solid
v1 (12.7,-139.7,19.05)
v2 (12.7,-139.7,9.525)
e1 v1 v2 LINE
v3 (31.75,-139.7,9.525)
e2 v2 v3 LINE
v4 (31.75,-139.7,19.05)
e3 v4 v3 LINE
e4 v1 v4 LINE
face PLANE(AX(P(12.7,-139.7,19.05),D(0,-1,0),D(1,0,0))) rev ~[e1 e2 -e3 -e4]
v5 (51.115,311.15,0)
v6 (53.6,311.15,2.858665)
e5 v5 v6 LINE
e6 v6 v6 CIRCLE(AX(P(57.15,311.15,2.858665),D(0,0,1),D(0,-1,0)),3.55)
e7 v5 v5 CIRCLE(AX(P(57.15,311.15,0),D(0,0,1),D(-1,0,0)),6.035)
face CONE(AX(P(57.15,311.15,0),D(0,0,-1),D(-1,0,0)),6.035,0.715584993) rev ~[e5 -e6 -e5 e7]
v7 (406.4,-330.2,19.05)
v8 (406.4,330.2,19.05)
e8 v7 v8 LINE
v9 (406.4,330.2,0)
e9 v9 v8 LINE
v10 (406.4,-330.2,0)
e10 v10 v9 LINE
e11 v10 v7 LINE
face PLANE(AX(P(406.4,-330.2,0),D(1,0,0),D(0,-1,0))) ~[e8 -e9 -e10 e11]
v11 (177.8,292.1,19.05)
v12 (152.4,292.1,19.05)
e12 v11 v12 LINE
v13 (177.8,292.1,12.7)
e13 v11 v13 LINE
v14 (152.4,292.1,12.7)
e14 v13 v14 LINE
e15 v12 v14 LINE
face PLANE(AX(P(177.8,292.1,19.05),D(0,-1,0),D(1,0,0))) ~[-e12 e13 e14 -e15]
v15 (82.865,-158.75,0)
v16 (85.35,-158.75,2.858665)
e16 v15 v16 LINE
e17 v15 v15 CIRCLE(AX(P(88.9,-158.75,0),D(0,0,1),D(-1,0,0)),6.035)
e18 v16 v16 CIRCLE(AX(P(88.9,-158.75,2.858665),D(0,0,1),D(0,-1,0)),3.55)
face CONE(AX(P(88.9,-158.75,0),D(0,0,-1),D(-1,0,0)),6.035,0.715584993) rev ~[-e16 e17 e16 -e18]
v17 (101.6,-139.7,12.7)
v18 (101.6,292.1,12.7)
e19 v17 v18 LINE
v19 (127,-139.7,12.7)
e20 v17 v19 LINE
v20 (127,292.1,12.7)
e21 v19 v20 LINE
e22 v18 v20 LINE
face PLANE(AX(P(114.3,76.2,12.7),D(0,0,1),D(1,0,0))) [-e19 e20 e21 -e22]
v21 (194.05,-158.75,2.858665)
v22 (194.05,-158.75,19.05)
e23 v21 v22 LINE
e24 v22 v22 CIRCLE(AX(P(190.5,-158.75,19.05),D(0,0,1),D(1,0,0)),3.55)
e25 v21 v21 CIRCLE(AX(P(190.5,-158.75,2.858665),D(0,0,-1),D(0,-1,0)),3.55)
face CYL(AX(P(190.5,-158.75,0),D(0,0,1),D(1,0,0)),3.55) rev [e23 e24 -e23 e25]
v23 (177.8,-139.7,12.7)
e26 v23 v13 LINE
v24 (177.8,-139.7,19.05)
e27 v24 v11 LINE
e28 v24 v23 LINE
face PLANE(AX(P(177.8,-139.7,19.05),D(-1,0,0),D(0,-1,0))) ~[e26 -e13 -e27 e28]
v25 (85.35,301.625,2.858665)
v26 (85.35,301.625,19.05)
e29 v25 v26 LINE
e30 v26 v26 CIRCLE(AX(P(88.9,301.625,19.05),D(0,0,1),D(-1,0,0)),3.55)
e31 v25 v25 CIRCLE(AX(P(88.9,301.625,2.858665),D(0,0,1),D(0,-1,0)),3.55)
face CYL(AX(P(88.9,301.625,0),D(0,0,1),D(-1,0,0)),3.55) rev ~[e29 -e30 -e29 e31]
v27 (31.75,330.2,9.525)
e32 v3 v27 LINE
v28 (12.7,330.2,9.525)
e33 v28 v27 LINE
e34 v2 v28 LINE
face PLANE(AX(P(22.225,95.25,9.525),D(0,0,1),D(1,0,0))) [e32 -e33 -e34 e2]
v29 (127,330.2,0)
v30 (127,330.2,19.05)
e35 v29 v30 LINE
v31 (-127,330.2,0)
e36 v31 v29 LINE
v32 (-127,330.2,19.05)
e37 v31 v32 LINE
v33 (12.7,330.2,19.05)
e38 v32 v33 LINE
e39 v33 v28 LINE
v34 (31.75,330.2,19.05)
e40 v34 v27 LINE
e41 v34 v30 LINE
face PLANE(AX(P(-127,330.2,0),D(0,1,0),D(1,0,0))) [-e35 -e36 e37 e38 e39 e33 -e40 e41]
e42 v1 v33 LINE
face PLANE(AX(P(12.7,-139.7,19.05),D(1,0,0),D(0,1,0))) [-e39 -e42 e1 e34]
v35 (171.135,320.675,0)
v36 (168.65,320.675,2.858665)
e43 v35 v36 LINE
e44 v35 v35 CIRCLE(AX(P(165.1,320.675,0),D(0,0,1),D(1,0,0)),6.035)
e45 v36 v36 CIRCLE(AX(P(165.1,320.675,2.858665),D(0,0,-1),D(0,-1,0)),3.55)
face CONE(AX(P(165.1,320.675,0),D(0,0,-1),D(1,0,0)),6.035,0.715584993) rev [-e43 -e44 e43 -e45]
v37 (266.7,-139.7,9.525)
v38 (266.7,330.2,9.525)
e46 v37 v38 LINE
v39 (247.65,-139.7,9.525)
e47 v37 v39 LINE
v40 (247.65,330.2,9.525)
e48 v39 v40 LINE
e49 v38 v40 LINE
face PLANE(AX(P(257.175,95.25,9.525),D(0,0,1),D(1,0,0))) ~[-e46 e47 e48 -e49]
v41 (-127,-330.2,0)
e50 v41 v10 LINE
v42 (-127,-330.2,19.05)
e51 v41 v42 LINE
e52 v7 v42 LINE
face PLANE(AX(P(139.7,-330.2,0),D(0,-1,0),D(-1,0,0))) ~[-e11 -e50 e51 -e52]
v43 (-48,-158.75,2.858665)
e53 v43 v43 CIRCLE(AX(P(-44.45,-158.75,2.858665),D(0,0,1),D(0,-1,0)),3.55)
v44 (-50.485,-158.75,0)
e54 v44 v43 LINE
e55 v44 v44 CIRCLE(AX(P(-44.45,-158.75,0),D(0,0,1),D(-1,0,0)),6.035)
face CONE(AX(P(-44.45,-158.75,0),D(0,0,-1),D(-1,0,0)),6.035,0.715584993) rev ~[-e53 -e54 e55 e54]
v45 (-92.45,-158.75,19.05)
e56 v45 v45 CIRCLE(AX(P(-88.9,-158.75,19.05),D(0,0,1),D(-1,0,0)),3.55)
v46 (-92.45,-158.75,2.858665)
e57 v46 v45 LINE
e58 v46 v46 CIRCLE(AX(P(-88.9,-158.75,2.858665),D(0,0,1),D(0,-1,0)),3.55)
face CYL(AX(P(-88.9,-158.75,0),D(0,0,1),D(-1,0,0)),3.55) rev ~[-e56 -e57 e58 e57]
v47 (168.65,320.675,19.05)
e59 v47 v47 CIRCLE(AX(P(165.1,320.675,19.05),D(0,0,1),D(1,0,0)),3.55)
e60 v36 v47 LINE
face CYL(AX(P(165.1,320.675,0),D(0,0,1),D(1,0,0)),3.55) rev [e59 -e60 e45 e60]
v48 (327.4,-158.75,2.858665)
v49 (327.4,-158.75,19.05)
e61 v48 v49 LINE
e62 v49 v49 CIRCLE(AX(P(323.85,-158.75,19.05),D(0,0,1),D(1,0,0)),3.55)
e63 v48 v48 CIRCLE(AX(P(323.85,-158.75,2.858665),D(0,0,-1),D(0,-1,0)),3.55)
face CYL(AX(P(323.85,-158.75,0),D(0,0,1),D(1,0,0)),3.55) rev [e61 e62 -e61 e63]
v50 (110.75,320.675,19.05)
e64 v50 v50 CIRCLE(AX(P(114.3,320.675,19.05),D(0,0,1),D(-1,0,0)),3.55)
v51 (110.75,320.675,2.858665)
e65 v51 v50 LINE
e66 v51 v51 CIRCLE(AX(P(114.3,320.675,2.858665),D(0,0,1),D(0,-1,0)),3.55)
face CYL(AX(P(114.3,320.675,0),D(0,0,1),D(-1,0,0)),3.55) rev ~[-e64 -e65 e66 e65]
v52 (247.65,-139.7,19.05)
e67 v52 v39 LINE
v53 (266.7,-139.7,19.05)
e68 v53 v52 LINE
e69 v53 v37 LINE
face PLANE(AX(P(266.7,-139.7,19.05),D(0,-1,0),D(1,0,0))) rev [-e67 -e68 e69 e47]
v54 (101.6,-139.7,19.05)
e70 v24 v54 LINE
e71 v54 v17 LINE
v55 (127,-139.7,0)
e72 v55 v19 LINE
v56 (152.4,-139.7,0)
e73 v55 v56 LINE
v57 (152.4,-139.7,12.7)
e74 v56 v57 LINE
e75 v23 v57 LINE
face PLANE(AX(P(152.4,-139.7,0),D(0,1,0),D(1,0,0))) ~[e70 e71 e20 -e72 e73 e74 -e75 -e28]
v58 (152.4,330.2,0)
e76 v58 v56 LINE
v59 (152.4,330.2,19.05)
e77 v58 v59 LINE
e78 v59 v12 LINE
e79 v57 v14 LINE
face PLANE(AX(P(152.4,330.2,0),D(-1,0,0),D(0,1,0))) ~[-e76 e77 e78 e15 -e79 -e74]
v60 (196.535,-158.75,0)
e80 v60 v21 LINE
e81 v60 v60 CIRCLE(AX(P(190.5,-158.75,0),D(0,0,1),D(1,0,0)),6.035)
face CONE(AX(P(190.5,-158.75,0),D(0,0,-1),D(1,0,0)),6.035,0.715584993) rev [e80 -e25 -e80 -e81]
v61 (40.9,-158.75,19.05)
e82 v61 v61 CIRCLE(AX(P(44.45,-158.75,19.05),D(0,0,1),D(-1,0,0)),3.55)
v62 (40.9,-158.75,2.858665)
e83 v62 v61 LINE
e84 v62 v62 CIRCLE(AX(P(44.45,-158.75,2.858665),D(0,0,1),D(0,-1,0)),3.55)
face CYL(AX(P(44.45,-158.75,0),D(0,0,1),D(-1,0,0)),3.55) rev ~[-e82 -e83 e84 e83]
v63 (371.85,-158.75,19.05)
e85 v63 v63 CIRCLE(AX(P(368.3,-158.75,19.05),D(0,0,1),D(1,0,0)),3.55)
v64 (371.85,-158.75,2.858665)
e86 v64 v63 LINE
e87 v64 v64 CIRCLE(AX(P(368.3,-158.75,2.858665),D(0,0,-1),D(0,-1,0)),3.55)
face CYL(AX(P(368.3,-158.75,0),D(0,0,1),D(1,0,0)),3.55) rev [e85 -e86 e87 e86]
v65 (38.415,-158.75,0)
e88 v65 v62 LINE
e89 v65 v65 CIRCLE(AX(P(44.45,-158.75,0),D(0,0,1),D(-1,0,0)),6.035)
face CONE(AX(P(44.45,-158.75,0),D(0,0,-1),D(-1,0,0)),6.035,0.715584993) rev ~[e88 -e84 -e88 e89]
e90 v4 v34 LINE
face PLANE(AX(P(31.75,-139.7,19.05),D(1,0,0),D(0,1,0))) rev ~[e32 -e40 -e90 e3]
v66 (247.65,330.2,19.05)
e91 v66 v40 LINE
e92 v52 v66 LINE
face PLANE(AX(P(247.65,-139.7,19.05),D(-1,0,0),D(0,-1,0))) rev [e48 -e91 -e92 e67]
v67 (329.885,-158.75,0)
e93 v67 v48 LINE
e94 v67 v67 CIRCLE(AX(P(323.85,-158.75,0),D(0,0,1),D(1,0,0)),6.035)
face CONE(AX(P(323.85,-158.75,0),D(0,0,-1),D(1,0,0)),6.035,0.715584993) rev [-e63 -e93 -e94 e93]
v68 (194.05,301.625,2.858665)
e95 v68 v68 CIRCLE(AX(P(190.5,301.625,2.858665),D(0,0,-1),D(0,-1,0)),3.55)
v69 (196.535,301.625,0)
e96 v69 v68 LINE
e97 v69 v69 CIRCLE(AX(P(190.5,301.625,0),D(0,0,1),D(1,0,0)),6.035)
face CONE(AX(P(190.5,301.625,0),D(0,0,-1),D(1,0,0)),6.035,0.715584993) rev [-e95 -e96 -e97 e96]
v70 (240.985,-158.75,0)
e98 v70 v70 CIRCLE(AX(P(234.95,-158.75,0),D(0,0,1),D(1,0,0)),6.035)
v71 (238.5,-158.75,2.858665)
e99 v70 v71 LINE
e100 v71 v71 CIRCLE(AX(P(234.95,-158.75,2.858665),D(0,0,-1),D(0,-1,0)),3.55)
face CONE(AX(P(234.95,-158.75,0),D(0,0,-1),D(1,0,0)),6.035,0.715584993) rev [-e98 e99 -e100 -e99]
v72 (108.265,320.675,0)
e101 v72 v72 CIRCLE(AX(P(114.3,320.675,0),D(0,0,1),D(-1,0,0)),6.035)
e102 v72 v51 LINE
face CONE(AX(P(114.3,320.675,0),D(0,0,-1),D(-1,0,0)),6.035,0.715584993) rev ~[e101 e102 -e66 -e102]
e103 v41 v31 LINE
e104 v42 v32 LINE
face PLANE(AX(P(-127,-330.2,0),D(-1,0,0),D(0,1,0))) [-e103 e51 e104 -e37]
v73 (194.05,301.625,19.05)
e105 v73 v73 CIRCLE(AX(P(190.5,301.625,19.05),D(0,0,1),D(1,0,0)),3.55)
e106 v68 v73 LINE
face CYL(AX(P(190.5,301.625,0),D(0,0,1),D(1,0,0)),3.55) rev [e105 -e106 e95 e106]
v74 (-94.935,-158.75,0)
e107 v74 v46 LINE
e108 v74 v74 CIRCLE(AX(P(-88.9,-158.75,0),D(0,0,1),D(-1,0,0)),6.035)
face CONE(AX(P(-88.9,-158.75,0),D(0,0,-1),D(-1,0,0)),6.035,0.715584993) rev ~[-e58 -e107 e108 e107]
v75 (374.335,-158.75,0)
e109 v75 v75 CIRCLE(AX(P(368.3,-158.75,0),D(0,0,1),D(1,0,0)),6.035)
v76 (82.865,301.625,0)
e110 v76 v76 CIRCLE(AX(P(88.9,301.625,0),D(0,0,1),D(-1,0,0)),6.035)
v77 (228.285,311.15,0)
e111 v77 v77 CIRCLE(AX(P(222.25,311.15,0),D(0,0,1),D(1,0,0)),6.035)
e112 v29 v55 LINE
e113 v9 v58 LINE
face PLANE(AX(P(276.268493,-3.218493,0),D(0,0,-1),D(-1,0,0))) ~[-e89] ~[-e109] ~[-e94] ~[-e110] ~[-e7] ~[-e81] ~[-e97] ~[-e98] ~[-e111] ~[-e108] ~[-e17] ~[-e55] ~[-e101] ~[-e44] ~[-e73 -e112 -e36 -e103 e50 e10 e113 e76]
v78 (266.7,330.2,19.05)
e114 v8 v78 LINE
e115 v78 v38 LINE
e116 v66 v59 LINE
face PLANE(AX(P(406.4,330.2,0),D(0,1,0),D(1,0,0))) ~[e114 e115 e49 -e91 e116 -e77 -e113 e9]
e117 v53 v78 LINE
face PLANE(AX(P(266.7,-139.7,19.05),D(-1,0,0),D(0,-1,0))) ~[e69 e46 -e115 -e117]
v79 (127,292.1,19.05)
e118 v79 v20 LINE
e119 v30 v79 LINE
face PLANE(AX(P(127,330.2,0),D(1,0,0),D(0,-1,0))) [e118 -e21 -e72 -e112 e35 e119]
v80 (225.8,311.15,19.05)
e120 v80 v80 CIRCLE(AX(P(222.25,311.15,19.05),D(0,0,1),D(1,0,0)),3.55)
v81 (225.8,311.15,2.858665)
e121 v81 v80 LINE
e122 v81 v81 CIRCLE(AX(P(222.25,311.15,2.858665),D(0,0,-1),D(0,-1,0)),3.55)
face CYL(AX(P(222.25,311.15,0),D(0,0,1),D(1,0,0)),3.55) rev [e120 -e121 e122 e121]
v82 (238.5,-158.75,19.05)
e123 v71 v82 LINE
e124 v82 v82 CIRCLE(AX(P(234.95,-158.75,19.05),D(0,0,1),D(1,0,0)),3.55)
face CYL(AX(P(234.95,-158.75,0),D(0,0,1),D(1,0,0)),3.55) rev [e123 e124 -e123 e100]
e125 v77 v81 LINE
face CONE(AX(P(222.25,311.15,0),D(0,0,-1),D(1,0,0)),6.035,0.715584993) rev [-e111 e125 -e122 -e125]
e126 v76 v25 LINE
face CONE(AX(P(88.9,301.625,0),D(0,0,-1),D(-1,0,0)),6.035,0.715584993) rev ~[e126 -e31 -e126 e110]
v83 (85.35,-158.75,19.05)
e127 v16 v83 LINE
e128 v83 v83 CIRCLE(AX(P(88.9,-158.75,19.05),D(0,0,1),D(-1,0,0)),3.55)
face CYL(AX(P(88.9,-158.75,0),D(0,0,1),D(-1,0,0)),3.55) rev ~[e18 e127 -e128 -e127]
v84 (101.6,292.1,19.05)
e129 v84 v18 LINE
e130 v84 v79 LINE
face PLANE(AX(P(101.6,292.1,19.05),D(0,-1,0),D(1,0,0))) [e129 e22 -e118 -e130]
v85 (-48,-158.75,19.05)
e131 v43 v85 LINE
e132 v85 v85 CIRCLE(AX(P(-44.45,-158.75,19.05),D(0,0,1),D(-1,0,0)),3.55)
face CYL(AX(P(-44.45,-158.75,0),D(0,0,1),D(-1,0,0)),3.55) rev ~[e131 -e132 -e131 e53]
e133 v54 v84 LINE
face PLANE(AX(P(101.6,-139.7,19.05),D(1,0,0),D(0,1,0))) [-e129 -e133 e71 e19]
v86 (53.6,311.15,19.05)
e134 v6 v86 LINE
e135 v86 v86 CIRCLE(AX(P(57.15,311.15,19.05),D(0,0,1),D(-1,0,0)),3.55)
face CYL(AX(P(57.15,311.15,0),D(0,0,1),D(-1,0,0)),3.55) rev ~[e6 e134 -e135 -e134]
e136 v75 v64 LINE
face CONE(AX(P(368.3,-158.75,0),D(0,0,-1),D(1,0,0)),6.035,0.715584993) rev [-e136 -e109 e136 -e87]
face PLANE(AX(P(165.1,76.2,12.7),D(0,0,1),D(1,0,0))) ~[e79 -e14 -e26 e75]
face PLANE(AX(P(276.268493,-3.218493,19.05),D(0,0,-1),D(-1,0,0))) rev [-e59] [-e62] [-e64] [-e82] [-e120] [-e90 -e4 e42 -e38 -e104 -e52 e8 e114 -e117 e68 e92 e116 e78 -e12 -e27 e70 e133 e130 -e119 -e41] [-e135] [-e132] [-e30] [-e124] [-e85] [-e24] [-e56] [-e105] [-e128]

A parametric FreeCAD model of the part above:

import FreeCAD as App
import Part
import Sketcher
from FreeCAD import Vector
Q = App.Units.Quantity

doc = App.newDocument("Part")
body = doc.addObject("PartDesign::Body", "Body")

# Sketch on XY plane
sketch1 = body.newObject("Sketcher::SketchObject", "Sketch")
sketch1.AttachmentSupport = (doc.getObject("XY_Plane"), [""])
sketch1.MapMode = "FlatFace"
sketch1.addGeometry(Part.LineSegment(Vector(-127, 330, 0), Vector(-127, -330, 0)), False)
sketch1.addGeometry(Part.LineSegment(Vector(-127, -330, 0), Vector(140, -330, 0)), False)
sketch1.addGeometry(Part.LineSegment(Vector(140, -330, 0), Vector(140, -140, 0)), False)
sketch1.addGeometry(Part.LineSegment(Vector(140, -140, 0), Vector(127, -140, 0)), False)
sketch1.addGeometry(Part.LineSegment(Vector(127, -140, 0), Vector(127, 330, 0)), False)
sketch1.addGeometry(Part.LineSegment(Vector(127, 330, 0), Vector(-127, 330, 0)), False)
sketch1.addConstraint(Sketcher.Constraint("Coincident", 0, 2, 1, 1))
sketch1.addConstraint(Sketcher.Constraint("Coincident", 1, 2, 2, 1))
sketch1.addConstraint(Sketcher.Constraint("Coincident", 2, 2, 3, 1))
sketch1.addConstraint(Sketcher.Constraint("Coincident", 3, 2, 4, 1))
sketch1.addConstraint(Sketcher.Constraint("Coincident", 4, 2, 5, 1))
sketch1.addConstraint(Sketcher.Constraint("Coincident", 5, 2, 0, 1))
sketch1.addConstraint(Sketcher.Constraint("Vertical", 0))
sketch1.addConstraint(Sketcher.Constraint("Horizontal", 1))
sketch1.addConstraint(Sketcher.Constraint("Vertical", 2))
sketch1.addConstraint(Sketcher.Constraint("Horizontal", 3))
sketch1.addConstraint(Sketcher.Constraint("Vertical", 4))
sketch1.addConstraint(Sketcher.Constraint("Horizontal", 5))
sketch1.addConstraint(Sketcher.Constraint("Symmetric", 0, 2, 4, 2, -1, 1))
sketch1.addConstraint(Sketcher.Constraint("DistanceX", 5, 2, 5, 1, Q("10 in")))
sketch1.addConstraint(Sketcher.Constraint("DistanceY", 0, 2, 0, 1, Q("26 in")))
sketch1.addConstraint(Sketcher.Constraint("DistanceX", 1, 1, 1, 2, Q("10.5 in")))
sketch1.addConstraint(Sketcher.Constraint("DistanceY", 2, 1, 2, 2, Q("7.5 in")))
pad1 = body.newObject("PartDesign::Pad", "Pad")
pad1.Profile = sketch1
pad1.Length = Q("0.75 in")

# Sketch on XY plane
sketch2 = body.newObject("Sketcher::SketchObject", "Sketch001")
sketch2.AttachmentSupport = (doc.getObject("XY_Plane"), [""])
sketch2.MapMode = "FlatFace"
sketch2.AttachmentOffset = App.Placement(Vector(0, 0, 0.75 * 25.4), App.Rotation())
sketch2.addGeometry(Part.LineSegment(Vector(13, 330, 0), Vector(13, -140, 0)), False)
sketch2.addGeometry(Part.LineSegment(Vector(13, -140, 0), Vector(32, -140, 0)), False)
sketch2.addGeometry(Part.LineSegment(Vector(32, -140, 0), Vector(32, 330, 0)), False)
sketch2.addGeometry(Part.LineSegment(Vector(32, 330, 0), Vector(13, 330, 0)), False)
sketch2.addConstraint(Sketcher.Constraint("Coincident", 0, 2, 1, 1))
sketch2.addConstraint(Sketcher.Constraint("Coincident", 1, 2, 2, 1))
sketch2.addConstraint(Sketcher.Constraint("Coincident", 2, 2, 3, 1))
sketch2.addConstraint(Sketcher.Constraint("Coincident", 3, 2, 0, 1))
sketch2.addConstraint(Sketcher.Constraint("Vertical", 0))
sketch2.addConstraint(Sketcher.Constraint("Horizontal", 1))
sketch2.addConstraint(Sketcher.Constraint("Vertical", 2))
sketch2.addConstraint(Sketcher.Constraint("Horizontal", 3))
sketch2.addConstraint(Sketcher.Constraint("DistanceY", 0, 2, 0, 1, Q("18.5 in")))
sketch2.addConstraint(Sketcher.Constraint("DistanceY", -1, 1, 2, 2, Q("13 in")))
sketch2.addConstraint(Sketcher.Constraint("DistanceX", 1, 1, 1, 2, Q("0.75 in")))
sketch2.addConstraint(Sketcher.Constraint("DistanceX", -1, 1, 0, 2, Q("0.5 in")))
pocket1 = body.newObject("PartDesign::Pocket", "Pocket")
pocket1.Profile = sketch2
pocket1.Length = Q("0.375 in")

# Sketch on XY plane
sketch3 = body.newObject("Sketcher::SketchObject", "Sketch002")
sketch3.AttachmentSupport = (doc.getObject("XY_Plane"), [""])
sketch3.MapMode = "FlatFace"
sketch3.addGeometry(Part.Circle(Vector(-88.9, -158.8, 0), Vector(0, 0, 1), 3.5), False)
sketch3.addGeometry(Part.Circle(Vector(88.9, -158.8, 0), Vector(0, 0, 1), 3.5), False)
sketch3.addGeometry(Part.Circle(Vector(-44.5, -158.8, 0), Vector(0, 0, 1), 3.5), False)
sketch3.addGeometry(Part.Circle(Vector(44.5, -158.8, 0), Vector(0, 0, 1), 3.5), False)
sketch3.addGeometry(Part.Circle(Vector(57.1, 311.1, 0), Vector(0, 0, 1), 3.5), False)
sketch3.addGeometry(Part.Circle(Vector(88.9, 301.6, 0), Vector(0, 0, 1), 3.5), False)
sketch3.addGeometry(Part.Circle(Vector(114.3, 320.7, 0), Vector(0, 0, 1), 3.5), False)
sketch3.addConstraint(Sketcher.Constraint("Equal", 0, 1))
sketch3.addConstraint(Sketcher.Constraint("Equal", 1, 2))
sketch3.addConstraint(Sketcher.Constraint("Equal", 2, 3))
sketch3.addConstraint(Sketcher.Constraint("Equal", 3, 4))
sketch3.addConstraint(Sketcher.Constraint("Equal", 4, 5))
sketch3.addConstraint(Sketcher.Constraint("Equal", 5, 6))
sketch3.addConstraint(Sketcher.Constraint("Symmetric", 0, 3, 1, 3, -2))
sketch3.addConstraint(Sketcher.Constraint("Symmetric", 2, 3, 3, 3, -2))
sketch3.addConstraint(Sketcher.Constraint("Horizontal", 1, 3, 2, 3))
sketch3.addConstraint(Sketcher.Constraint("Vertical", 1, 3, 5, 3))
sketch3.addConstraint(Sketcher.Constraint("DistanceX", 0, 3, 1, 3, Q("7 in")))
sketch3.addConstraint(Sketcher.Constraint("DistanceX", 2, 3, 4, 3, Q("4 in")))
sketch3.addConstraint(Sketcher.Constraint("DistanceX", 5, 3, 6, 3, Q("1 in")))
sketch3.addConstraint(Sketcher.Constraint("DistanceX", 2, 3, 3, 3, Q("3.5 in")))
sketch3.addConstraint(Sketcher.Constraint("DistanceY", 3, 3, 4, 3, Q("18.5 in")))
sketch3.addConstraint(Sketcher.Constraint("Diameter", 0, 7.1))
sketch3.addConstraint(Sketcher.Constraint("DistanceY", 0, 3, -1, 1, Q("6.25 in")))
sketch3.addConstraint(Sketcher.Constraint("DistanceY", 5, 3, 6, 3, Q("0.75 in")))
sketch3.addConstraint(Sketcher.Constraint("DistanceY", -1, 1, 5, 3, Q("11.875 in")))
doc.recompute()
hole = body.newObject("PartDesign::Hole", "Hole")
hole.Profile = sketch3
hole.ThreadType = "None"
hole.Diameter = 7.1
hole.DepthType = "ThroughAll"
hole.HoleCutType = "Countersink"
hole.HoleCutDiameter = 12.07
hole.HoleCutCountersinkAngle = 82
hole.Reversed = True

# Sketch on XY plane
sketch4 = body.newObject("Sketcher::SketchObject", "Sketch003")
sketch4.AttachmentSupport = (doc.getObject("XY_Plane"), [""])
sketch4.MapMode = "FlatFace"
sketch4.AttachmentOffset = App.Placement(Vector(0, 0, 0.75 * 25.4), App.Rotation())
sketch4.addGeometry(Part.LineSegment(Vector(102, 292, 0), Vector(102, -140, 0)), False)
sketch4.addGeometry(Part.LineSegment(Vector(102, -140, 0), Vector(127, -140, 0)), False)
sketch4.addGeometry(Part.LineSegment(Vector(127, -140, 0), Vector(127, 292, 0)), False)
sketch4.addGeometry(Part.LineSegment(Vector(127, 292, 0), Vector(102, 292, 0)), False)
sketch4.addConstraint(Sketcher.Constraint("Coincident", 0, 2, 1, 1))
sketch4.addConstraint(Sketcher.Constraint("Coincident", 1, 2, 2, 1))
sketch4.addConstraint(Sketcher.Constraint("Coincident", 2, 2, 3, 1))
sketch4.addConstraint(Sketcher.Constraint("Coincident", 3, 2, 0, 1))
sketch4.addConstraint(Sketcher.Constraint("Vertical", 0))
sketch4.addConstraint(Sketcher.Constraint("Horizontal", 1))
sketch4.addConstraint(Sketcher.Constraint("Vertical", 2))
sketch4.addConstraint(Sketcher.Constraint("Horizontal", 3))
sketch4.addConstraint(Sketcher.Constraint("DistanceX", 1, 1, 1, 2, Q("1 in")))
sketch4.addConstraint(Sketcher.Constraint("DistanceY", 0, 2, 0, 1, Q("17 in")))
sketch4.addConstraint(Sketcher.Constraint("DistanceX", -1, 1, 0, 2, Q("4 in")))
sketch4.addConstraint(Sketcher.Constraint("DistanceY", 0, 2, -1, 1, Q("5.5 in")))
pocket2 = body.newObject("PartDesign::Pocket", "Pocket001")
pocket2.Profile = sketch4
pocket2.Length = Q("0.25 in")
doc.recompute()

datumplane = body.newObject("PartDesign::Plane", "DatumPlane")
datumplane.AttachmentSupport = (doc.getObject("YZ_Plane"), [""])
datumplane.MapMode = "FlatFace"
datumplane.AttachmentOffset = App.Placement(Vector(0, 0, 5.5 * 25.4), App.Rotation())
mirrored = body.newObject("PartDesign::Mirrored", "Mirrored")
mirrored.Originals = [pad1, pocket1, hole, pocket2]
mirrored.MirrorPlane = (datumplane, [""])
body.Tip = mirrored

doc.recompute()
